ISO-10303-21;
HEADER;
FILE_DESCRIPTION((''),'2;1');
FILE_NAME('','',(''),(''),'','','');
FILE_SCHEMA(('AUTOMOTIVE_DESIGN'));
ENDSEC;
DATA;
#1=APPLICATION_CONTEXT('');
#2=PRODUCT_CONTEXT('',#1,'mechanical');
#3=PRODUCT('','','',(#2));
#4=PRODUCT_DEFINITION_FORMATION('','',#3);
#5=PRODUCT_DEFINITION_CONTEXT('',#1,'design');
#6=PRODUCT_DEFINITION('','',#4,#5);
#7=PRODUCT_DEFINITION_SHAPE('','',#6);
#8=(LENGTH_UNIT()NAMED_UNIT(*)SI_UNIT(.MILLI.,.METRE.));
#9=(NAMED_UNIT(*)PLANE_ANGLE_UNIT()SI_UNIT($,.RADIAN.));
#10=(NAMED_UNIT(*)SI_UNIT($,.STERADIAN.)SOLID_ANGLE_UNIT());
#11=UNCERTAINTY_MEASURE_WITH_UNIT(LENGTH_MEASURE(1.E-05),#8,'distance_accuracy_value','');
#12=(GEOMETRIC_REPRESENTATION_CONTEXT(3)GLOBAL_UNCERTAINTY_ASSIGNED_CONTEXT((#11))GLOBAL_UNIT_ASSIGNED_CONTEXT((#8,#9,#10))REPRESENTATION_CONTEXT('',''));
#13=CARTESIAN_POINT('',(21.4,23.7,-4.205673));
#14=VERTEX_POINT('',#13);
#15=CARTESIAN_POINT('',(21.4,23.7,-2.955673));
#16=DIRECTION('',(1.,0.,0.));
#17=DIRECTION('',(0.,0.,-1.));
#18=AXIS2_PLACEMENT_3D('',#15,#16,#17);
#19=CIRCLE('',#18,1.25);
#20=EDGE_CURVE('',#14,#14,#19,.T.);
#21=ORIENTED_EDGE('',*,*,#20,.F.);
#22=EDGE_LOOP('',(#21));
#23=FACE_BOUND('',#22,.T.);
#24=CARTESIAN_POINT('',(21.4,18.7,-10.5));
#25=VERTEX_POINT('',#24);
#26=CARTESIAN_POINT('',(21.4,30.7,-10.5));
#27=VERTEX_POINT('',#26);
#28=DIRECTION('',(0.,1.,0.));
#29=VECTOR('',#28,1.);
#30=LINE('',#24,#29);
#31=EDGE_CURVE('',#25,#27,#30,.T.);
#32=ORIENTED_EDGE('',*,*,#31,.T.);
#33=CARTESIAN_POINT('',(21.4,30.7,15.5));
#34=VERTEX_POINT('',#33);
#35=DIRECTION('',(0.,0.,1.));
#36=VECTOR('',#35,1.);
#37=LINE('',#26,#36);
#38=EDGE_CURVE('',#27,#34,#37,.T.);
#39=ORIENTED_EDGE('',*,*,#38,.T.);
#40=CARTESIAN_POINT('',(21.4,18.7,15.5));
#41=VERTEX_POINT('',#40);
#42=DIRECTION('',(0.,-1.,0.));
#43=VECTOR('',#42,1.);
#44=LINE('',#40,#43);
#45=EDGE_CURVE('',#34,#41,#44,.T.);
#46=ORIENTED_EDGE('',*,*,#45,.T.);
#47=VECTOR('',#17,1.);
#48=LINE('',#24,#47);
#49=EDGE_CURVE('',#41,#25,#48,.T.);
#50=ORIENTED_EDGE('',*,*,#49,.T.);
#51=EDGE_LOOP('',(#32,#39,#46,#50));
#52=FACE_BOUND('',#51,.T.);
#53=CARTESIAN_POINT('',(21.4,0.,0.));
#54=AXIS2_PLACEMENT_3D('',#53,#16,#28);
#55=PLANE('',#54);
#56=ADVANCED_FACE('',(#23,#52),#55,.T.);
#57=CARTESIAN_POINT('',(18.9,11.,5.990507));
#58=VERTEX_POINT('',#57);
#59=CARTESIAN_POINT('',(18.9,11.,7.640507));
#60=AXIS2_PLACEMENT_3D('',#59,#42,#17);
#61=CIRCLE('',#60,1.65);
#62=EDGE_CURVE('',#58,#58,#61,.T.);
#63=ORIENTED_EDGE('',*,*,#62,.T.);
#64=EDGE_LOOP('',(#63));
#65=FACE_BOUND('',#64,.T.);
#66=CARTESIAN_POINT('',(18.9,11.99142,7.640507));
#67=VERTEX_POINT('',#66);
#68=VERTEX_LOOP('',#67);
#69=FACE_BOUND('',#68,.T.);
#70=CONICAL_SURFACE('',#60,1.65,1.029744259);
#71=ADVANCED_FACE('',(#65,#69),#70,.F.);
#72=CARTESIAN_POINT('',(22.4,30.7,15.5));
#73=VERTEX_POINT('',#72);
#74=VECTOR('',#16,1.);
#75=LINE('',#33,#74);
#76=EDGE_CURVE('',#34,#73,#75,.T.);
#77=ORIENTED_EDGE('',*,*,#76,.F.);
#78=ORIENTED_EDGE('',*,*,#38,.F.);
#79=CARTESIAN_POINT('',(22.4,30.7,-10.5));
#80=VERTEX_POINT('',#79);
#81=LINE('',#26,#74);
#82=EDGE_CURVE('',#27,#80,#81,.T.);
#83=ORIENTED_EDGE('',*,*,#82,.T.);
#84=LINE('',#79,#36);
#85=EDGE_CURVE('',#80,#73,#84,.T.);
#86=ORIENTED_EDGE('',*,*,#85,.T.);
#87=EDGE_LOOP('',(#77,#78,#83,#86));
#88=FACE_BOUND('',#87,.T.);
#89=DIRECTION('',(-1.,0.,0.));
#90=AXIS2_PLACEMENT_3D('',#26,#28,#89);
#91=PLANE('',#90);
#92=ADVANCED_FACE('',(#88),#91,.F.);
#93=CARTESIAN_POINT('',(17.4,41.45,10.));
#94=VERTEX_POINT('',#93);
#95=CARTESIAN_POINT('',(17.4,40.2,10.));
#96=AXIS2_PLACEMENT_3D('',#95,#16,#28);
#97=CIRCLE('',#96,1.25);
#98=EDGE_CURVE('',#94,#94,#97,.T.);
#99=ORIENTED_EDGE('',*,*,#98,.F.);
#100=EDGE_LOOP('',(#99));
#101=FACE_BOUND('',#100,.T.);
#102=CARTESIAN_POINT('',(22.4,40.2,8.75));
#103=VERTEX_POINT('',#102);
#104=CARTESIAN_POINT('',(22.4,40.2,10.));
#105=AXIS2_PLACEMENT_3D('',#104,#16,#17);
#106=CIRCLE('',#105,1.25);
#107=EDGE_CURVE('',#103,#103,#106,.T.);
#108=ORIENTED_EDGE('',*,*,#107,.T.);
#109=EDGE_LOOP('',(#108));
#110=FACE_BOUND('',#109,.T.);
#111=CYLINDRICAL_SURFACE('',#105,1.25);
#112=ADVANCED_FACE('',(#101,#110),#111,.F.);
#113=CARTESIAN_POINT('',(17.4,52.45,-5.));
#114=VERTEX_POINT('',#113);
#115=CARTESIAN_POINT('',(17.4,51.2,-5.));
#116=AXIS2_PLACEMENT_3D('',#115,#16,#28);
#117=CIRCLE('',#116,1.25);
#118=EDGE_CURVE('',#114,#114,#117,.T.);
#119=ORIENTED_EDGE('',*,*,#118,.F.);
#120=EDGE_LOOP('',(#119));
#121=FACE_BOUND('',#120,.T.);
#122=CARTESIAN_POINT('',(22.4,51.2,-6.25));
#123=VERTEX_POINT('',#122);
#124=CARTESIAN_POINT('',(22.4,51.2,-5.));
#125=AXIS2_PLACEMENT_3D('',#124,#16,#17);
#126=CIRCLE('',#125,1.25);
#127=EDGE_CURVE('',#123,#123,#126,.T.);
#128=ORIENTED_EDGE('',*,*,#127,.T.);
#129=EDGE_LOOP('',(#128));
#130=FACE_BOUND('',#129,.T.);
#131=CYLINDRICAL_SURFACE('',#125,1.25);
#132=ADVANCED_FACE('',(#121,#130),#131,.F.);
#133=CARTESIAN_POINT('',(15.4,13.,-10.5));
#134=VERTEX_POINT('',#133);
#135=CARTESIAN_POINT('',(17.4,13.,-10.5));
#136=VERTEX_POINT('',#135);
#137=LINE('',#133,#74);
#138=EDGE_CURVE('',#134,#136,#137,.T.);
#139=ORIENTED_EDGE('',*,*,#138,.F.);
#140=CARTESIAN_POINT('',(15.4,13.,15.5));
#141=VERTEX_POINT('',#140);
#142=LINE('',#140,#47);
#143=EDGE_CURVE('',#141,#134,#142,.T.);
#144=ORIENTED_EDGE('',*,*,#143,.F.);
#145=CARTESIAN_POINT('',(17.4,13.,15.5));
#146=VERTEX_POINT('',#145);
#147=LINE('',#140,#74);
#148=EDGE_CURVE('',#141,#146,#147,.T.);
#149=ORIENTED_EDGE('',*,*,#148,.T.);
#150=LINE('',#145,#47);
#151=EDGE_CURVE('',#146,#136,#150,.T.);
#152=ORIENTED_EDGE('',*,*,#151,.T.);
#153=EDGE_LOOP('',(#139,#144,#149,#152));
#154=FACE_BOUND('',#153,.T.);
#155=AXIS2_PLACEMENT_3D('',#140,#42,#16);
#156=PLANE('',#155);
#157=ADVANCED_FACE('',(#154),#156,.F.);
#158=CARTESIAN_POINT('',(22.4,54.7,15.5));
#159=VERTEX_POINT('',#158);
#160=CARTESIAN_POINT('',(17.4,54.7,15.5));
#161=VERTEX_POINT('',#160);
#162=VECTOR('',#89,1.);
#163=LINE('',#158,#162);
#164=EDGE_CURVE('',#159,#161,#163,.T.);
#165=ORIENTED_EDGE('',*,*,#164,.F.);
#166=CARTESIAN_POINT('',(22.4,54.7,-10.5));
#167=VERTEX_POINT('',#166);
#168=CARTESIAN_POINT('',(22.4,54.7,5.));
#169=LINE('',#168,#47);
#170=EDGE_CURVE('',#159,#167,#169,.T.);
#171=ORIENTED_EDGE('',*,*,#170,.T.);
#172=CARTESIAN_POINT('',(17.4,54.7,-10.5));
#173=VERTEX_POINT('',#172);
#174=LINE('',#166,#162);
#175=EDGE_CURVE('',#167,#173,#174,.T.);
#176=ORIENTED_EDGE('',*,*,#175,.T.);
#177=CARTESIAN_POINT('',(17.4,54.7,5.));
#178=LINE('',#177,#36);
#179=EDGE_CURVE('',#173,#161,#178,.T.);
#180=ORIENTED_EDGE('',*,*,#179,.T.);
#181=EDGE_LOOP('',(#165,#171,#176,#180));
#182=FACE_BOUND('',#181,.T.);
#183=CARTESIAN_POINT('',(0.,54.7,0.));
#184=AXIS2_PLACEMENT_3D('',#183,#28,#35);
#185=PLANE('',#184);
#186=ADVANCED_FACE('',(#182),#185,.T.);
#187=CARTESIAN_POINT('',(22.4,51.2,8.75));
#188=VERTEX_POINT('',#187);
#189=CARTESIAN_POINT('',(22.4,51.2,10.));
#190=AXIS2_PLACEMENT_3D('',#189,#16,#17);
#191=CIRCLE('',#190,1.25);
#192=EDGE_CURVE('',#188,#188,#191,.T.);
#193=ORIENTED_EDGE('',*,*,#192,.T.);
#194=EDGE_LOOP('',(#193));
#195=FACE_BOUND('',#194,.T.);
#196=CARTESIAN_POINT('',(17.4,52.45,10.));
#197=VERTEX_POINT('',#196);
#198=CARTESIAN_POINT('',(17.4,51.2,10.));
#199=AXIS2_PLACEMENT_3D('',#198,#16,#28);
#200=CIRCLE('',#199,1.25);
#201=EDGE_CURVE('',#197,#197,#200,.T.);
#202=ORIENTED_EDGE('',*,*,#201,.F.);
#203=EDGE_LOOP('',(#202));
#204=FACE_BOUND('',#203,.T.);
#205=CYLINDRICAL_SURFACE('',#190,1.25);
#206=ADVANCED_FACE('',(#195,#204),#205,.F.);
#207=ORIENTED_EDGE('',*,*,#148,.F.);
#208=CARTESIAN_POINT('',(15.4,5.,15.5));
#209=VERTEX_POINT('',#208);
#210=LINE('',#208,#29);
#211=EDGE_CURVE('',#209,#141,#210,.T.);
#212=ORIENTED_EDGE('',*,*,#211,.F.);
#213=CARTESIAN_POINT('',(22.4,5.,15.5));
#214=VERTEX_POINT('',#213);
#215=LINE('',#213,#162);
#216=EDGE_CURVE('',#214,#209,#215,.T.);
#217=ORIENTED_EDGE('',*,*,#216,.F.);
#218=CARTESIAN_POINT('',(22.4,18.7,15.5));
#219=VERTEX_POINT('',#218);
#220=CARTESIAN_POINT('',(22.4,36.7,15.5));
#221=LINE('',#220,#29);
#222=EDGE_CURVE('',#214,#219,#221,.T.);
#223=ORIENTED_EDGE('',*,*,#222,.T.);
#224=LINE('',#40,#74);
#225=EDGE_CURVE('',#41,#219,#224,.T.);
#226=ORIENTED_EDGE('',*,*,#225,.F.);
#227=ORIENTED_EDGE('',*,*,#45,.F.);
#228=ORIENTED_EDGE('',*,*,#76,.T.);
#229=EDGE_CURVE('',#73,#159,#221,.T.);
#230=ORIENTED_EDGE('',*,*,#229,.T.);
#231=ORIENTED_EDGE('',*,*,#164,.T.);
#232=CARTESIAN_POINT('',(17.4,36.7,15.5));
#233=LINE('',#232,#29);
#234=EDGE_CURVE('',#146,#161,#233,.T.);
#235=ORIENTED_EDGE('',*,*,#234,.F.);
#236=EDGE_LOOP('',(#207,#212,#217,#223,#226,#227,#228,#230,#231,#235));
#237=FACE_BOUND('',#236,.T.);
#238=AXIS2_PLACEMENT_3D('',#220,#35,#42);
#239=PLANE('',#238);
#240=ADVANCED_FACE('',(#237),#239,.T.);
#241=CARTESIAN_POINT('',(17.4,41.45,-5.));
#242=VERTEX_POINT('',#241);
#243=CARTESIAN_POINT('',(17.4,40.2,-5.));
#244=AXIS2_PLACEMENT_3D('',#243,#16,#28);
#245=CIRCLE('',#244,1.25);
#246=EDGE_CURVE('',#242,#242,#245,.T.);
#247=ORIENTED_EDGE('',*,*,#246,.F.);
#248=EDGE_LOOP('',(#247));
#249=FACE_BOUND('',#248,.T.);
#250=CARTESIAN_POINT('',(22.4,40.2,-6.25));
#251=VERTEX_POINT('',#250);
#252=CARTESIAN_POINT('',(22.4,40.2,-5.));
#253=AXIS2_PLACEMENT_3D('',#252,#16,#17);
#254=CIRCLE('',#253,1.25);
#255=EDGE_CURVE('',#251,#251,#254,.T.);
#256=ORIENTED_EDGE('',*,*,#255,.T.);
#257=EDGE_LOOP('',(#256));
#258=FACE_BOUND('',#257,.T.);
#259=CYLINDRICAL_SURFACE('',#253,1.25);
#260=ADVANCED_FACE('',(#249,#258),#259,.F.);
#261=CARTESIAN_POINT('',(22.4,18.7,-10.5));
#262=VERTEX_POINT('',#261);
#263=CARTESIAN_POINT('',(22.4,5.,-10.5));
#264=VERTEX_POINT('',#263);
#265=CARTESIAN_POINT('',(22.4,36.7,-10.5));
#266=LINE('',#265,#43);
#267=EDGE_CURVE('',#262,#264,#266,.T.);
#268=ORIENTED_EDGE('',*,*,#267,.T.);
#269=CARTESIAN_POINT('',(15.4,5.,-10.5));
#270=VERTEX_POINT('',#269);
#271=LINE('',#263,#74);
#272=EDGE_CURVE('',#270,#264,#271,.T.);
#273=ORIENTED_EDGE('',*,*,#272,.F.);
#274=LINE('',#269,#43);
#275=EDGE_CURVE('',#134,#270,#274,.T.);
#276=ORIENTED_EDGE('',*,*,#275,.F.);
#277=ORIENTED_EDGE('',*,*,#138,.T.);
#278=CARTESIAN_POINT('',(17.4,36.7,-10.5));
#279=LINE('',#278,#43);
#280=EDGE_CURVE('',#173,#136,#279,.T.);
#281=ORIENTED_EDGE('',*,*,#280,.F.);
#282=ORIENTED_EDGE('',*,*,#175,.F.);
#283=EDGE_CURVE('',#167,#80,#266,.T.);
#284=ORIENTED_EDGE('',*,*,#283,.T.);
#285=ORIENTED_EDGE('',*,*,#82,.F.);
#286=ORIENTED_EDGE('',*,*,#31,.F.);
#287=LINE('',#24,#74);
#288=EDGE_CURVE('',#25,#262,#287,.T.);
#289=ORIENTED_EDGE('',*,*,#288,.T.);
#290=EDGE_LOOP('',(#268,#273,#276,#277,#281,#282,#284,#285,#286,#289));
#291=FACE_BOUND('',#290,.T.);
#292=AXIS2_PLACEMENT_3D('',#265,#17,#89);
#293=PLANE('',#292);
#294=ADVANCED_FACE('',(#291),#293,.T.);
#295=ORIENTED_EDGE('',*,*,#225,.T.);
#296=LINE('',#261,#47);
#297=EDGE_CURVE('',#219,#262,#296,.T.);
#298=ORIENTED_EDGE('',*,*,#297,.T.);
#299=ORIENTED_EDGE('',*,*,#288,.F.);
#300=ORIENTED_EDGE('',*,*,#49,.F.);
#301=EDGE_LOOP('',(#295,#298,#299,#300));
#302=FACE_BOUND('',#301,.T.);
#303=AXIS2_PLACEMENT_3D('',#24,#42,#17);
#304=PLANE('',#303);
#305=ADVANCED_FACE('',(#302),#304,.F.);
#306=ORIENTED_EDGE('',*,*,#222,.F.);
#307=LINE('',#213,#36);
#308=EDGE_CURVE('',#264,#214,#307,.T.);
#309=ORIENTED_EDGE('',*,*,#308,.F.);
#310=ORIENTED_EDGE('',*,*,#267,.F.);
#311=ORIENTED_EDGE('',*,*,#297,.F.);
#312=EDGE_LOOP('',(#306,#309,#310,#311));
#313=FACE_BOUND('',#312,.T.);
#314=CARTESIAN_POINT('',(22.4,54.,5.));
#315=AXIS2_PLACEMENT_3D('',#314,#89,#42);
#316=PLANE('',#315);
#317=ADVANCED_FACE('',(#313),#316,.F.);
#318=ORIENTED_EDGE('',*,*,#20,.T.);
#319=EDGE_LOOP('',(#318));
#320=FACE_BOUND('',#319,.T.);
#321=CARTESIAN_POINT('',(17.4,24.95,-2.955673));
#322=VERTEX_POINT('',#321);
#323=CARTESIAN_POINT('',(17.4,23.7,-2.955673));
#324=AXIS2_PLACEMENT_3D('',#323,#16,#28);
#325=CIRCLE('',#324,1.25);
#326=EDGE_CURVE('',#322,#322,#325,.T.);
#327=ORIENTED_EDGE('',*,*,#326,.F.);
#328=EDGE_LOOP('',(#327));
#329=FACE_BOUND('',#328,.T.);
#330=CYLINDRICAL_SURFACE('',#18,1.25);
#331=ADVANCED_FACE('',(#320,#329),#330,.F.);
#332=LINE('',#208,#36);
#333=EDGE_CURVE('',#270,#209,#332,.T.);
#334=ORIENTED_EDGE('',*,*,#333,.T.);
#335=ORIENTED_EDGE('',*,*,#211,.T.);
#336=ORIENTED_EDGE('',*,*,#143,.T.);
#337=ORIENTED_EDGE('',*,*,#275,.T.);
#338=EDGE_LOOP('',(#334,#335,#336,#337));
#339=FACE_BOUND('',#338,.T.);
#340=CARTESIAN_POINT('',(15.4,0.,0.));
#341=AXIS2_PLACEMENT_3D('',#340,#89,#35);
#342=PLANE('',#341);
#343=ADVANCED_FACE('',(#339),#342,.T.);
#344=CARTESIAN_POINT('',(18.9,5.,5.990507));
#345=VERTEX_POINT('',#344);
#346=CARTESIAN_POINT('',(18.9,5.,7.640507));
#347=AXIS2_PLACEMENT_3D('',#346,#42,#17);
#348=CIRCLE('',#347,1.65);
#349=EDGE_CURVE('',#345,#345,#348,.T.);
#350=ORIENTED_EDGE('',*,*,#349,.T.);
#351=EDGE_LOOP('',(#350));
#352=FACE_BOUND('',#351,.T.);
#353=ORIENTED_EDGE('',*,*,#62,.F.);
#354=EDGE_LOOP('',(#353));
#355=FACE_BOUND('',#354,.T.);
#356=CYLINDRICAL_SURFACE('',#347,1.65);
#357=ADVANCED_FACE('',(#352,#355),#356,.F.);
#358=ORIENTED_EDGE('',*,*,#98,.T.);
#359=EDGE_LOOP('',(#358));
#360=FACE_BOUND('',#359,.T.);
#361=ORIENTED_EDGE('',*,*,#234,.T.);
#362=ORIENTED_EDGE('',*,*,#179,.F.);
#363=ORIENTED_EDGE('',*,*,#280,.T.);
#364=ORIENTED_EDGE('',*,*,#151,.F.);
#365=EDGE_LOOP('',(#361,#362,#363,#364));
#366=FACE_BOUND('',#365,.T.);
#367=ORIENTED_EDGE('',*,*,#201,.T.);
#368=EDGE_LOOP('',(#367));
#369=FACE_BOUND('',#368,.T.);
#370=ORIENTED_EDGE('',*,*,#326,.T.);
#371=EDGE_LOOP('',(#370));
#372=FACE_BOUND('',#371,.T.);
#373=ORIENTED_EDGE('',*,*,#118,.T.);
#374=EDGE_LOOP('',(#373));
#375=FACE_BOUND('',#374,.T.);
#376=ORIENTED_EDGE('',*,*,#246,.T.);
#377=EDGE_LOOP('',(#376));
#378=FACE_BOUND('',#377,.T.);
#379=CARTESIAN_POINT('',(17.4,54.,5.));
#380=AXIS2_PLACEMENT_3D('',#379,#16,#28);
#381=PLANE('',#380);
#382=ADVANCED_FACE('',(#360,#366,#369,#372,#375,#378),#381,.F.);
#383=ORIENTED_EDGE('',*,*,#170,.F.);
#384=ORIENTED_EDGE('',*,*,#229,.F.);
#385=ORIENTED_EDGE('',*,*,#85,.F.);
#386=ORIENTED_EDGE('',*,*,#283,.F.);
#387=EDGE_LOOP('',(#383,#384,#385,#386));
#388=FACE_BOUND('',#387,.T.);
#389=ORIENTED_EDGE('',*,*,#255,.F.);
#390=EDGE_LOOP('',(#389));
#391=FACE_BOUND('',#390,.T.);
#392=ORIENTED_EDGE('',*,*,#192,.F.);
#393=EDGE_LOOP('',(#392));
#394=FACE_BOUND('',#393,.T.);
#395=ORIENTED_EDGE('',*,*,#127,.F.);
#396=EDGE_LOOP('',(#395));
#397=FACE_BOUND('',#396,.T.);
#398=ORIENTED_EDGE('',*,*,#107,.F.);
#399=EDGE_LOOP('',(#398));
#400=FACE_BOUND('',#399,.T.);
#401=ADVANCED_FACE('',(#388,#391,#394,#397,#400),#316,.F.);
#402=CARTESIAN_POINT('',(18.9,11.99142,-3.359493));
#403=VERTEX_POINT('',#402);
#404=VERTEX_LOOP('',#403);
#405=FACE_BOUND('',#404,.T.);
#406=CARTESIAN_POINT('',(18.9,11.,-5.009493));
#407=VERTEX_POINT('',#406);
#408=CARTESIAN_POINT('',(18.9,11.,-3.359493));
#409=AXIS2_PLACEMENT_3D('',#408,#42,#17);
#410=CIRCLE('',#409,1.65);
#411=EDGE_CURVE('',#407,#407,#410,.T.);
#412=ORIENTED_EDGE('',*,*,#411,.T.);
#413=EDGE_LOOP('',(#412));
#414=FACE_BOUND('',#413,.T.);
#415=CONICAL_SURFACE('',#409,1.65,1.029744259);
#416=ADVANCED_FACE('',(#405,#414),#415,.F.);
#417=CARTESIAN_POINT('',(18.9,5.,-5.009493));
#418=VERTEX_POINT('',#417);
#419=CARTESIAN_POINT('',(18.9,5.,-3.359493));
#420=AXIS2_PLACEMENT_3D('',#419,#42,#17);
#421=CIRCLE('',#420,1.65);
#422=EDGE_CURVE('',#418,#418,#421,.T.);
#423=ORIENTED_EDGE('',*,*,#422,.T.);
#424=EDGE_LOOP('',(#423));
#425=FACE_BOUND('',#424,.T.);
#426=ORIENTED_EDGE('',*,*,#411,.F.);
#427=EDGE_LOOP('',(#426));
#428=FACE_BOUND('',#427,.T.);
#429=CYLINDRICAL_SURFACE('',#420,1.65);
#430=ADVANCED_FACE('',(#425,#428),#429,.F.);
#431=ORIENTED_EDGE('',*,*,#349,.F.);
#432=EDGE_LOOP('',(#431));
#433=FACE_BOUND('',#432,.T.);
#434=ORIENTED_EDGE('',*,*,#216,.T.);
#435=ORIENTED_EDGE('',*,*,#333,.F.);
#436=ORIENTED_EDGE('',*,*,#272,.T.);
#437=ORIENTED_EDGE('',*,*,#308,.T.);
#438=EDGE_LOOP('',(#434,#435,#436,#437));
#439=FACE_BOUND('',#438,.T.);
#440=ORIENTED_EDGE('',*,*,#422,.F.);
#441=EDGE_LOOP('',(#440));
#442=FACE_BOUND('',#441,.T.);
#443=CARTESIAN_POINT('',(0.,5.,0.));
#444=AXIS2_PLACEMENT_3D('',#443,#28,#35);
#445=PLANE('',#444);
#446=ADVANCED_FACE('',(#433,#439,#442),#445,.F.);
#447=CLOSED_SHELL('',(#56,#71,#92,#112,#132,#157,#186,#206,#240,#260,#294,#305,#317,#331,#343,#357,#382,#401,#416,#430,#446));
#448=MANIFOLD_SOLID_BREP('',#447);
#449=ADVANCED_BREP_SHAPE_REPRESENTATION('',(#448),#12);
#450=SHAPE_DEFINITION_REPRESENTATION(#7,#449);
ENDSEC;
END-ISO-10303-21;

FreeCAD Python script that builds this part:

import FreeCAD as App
import Part
import Sketcher
from FreeCAD import Vector
Q = App.Units.Quantity

doc = App.newDocument("Part")
body = doc.addObject("PartDesign::Body", "Body")

# Sketch on XY plane
sketch1 = body.newObject("Sketcher::SketchObject", "Sketch")
sketch1.AttachmentSupport = (doc.getObject("XY_Plane"), [""])
sketch1.MapMode = "FlatFace"
sketch1.addGeometry([
    Part.LineSegment(Vector(0, 6, 0), Vector(0, 0, 0)),
    Part.LineSegment(Vector(0, 0, 0), Vector(30, 0, 0)),
    Part.LineSegment(Vector(30, 0, 0), Vector(30, 6, 0)),
    Part.LineSegment(Vector(30, 6, 0), Vector(0, 6, 0)),
], False)
sketch1.addConstraint([
    Sketcher.Constraint("Coincident", 0, 2, 1, 1),
    Sketcher.Constraint("Coincident", 1, 2, 2, 1),
    Sketcher.Constraint("Coincident", 2, 2, 3, 1),
    Sketcher.Constraint("Coincident", 3, 2, 0, 1),
    Sketcher.Constraint("Vertical", 0),
    Sketcher.Constraint("Horizontal", 1),
    Sketcher.Constraint("Vertical", 2),
    Sketcher.Constraint("Horizontal", 3),
    Sketcher.Constraint("Coincident", 0, 2, -1, 1),
    Sketcher.Constraint("DistanceX", 1, 1, 1, 2, Q("30 mm")),
    Sketcher.Constraint("DistanceY", 0, 2, 0, 1, Q("6 mm")),
])
pad1 = body.newObject("PartDesign::Pad", "Pad")
pad1.Profile = sketch1
pad1.Length = 5

# Sketch on XY plane
sketch2 = body.newObject("Sketcher::SketchObject", "Sketch001")
sketch2.AttachmentSupport = (doc.getObject("XY_Plane"), [""])
sketch2.MapMode = "FlatFace"
sketch2.AttachmentOffset = App.Placement(Vector(0, 0, 5), App.Rotation())
sketch2.addGeometry([
    Part.Circle(Vector(22.5, 3, 0), Vector(0, 0, 1), 2.25),
    Part.Circle(Vector(7.5, 3, 0), Vector(0, 0, 1), 2.25),
], False)
sketch2.addConstraint([
    Sketcher.Constraint("Equal", 0, 1),
    Sketcher.Constraint("Horizontal", 0, 3, 1, 3),
    Sketcher.Constraint("Diameter", 0, Q("4.5 mm")),
    Sketcher.Constraint("DistanceY", -1, 1, 0, 3, Q("3 mm")),
    Sketcher.Constraint("DistanceX", 1, 3, 0, 3, Q("15 mm")),
    Sketcher.Constraint("DistanceX", -1, 1, 0, 3, Q("22.5 mm")),
])
pocket1 = body.newObject("PartDesign::Pocket", "Pocket")
pocket1.Profile = sketch2
pocket1.Type = "ThroughAll"

# Sketch on XY plane
sketch3 = body.newObject("Sketcher::SketchObject", "Sketch002")
sketch3.AttachmentSupport = (doc.getObject("XY_Plane"), [""])
sketch3.MapMode = "FlatFace"
sketch3.AttachmentOffset = App.Placement(Vector(0, 0, 5), App.Rotation())
sketch3.addGeometry([
    Part.LineSegment(Vector(-10, 36, 0), Vector(-10, 6, 0)),
    Part.LineSegment(Vector(-10, 6, 0), Vector(30, 6, 0)),
    Part.LineSegment(Vector(30, 6, 0), Vector(30, 36, 0)),
    Part.LineSegment(Vector(30, 36, 0), Vector(-10, 36, 0)),
], False)
sketch3.addConstraint([
    Sketcher.Constraint("Coincident", 0, 2, 1, 1),
    Sketcher.Constraint("Coincident", 1, 2, 2, 1),
    Sketcher.Constraint("Coincident", 2, 2, 3, 1),
    Sketcher.Constraint("Coincident", 3, 2, 0, 1),
    Sketcher.Constraint("Vertical", 0),
    Sketcher.Constraint("Horizontal", 1),
    Sketcher.Constraint("Vertical", 2),
    Sketcher.Constraint("Horizontal", 3),
    Sketcher.Constraint("DistanceX", 1, 1, 1, 2, Q("40 mm")),
    Sketcher.Constraint("DistanceY", 0, 2, 0, 1, Q("30 mm")),
    Sketcher.Constraint("DistanceX", 0, 2, -1, 1, Q("10 mm")),
    Sketcher.Constraint("DistanceY", -1, 1, 0, 2, Q("6 mm")),
])
pad2 = body.newObject("PartDesign::Pad", "Pad001")
pad2.Profile = sketch3
pad2.Length = 5
pad2.Reversed = True

# Sketch on XY plane
sketch4 = body.newObject("Sketcher::SketchObject", "Sketch003")
sketch4.AttachmentSupport = (doc.getObject("XY_Plane"), [""])
sketch4.MapMode = "FlatFace"
sketch4.AttachmentOffset = App.Placement(Vector(0, 0, 5), App.Rotation())
sketch4.addGeometry([
    Part.LineSegment(Vector(27, 36, 0), Vector(27, 16, 0)),
    Part.LineSegment(Vector(27, 16, 0), Vector(30, 16, 0)),
    Part.LineSegment(Vector(30, 16, 0), Vector(30, 36, 0)),
    Part.LineSegment(Vector(30, 36, 0), Vector(27, 36, 0)),
], False)
sketch4.addConstraint([
    Sketcher.Constraint("Coincident", 0, 2, 1, 1),
    Sketcher.Constraint("Coincident", 1, 2, 2, 1),
    Sketcher.Constraint("Coincident", 2, 2, 3, 1),
    Sketcher.Constraint("Coincident", 3, 2, 0, 1),
    Sketcher.Constraint("Vertical", 0),
    Sketcher.Constraint("Horizontal", 1),
    Sketcher.Constraint("Vertical", 2),
    Sketcher.Constraint("Horizontal", 3),
    Sketcher.Constraint("DistanceX", 1, 1, 1, 2, Q("3 mm")),
    Sketcher.Constraint("DistanceY", 0, 2, 0, 1, Q("20 mm")),
    Sketcher.Constraint("DistanceX", -1, 1, 0, 2, Q("27 mm")),
    Sketcher.Constraint("DistanceY", -1, 1, 0, 2, Q("16 mm")),
])
pocket2 = body.newObject("PartDesign::Pocket", "Pocket001")
pocket2.Profile = sketch4
pocket2.Length = 10

# Sketch on XZ plane
sketch5 = body.newObject("Sketcher::SketchObject", "Sketch004")
sketch5.AttachmentSupport = (doc.getObject("XZ_Plane"), [""])
sketch5.MapMode = "FlatFace"
sketch5.AttachmentOffset = App.Placement(Vector(0, 0, -6), App.Rotation())
sketch5.addGeometry([
    Part.LineSegment(Vector(-10, 5, 0), Vector(-10, 0, 0)),
    Part.LineSegment(Vector(-10, 0, 0), Vector(0, 0, 0)),
    Part.LineSegment(Vector(0, 0, 0), Vector(0, 5, 0)),
    Part.LineSegment(Vector(0, 5, 0), Vector(-10, 5, 0)),
], False)
sketch5.addConstraint([
    Sketcher.Constraint("Coincident", 0, 2, 1, 1),
    Sketcher.Constraint("Coincident", 1, 2, 2, 1),
    Sketcher.Constraint("Coincident", 2, 2, 3, 1),
    Sketcher.Constraint("Coincident", 3, 2, 0, 1),
    Sketcher.Constraint("Vertical", 0),
    Sketcher.Constraint("Horizontal", 1),
    Sketcher.Constraint("Vertical", 2),
    Sketcher.Constraint("Horizontal", 3),
    Sketcher.Constraint("Coincident", 1, 2, -1, 1),
    Sketcher.Constraint("DistanceX", 1, 1, 1, 2, Q("10 mm")),
    Sketcher.Constraint("DistanceY", 0, 2, 0, 1, Q("5 mm")),
])
pocket3 = body.newObject("PartDesign::Pocket", "Pocket002")
pocket3.Profile = sketch5
pocket3.Type = "ThroughAll"

# Sketch on XZ plane
sketch6 = body.newObject("Sketcher::SketchObject", "Sketch005")
sketch6.AttachmentSupport = (doc.getObject("XZ_Plane"), [""])
sketch6.MapMode = "FlatFace"
sketch6.AttachmentOffset = App.Placement(Vector(0, 0, -36), App.Rotation())
sketch6.addGeometry([
    Part.LineSegment(Vector(17.4, 0, 0), Vector(17.4, 5, 0)),
    Part.LineSegment(Vector(17.4, 5, 0), Vector(22.4, 5, 0)),
    Part.LineSegment(Vector(22.4, 5, 0), Vector(22.4, 0, 0)),
    Part.LineSegment(Vector(22.4, 0, 0), Vector(17.4, 0, 0)),
], False)
sketch6.addConstraint([
    Sketcher.Constraint("Coincident", 0, 2, 1, 1),
    Sketcher.Constraint("Coincident", 1, 2, 2, 1),
    Sketcher.Constraint("Coincident", 2, 2, 3, 1),
    Sketcher.Constraint("Coincident", 3, 2, 0, 1),
    Sketcher.Constraint("Vertical", 0),
    Sketcher.Constraint("Horizontal", 1),
    Sketcher.Constraint("Vertical", 2),
    Sketcher.Constraint("Horizontal", 3),
    Sketcher.Constraint("PointOnObject", 2, 2, -1),
    Sketcher.Constraint("Equal", 3, 0),
    Sketcher.Constraint("DistanceX", 1, 1, 1, 2, Q("5 mm")),
    Sketcher.Constraint("DistanceX", -1, 1, 0, 2, Q("17.4 mm")),
])
pad3 = body.newObject("PartDesign::Pad", "Pad002")
pad3.Profile = sketch6
pad3.Length = 18
pad3.Reversed = True

# Sketch on XY plane
sketch7 = body.newObject("Sketcher::SketchObject", "Sketch006")
sketch7.AttachmentSupport = (doc.getObject("XY_Plane"), [""])
sketch7.MapMode = "FlatFace"
sketch7.AttachmentOffset = App.Placement(Vector(0, 0, 5), App.Rotation())
sketch7.addGeometry([
    Part.LineSegment(Vector(0, 36, 0), Vector(0, 16, 0)),
    Part.LineSegment(Vector(0, 16, 0), Vector(10, 16, 0)),
    Part.LineSegment(Vector(10, 16, 0), Vector(10, 36, 0)),
    Part.LineSegment(Vector(10, 36, 0), Vector(0, 36, 0)),
], False)
sketch7.addConstraint([
    Sketcher.Constraint("Coincident", 0, 2, 1, 1),
    Sketcher.Constraint("Coincident", 1, 2, 2, 1),
    Sketcher.Constraint("Coincident", 2, 2, 3, 1),
    Sketcher.Constraint("Coincident", 3, 2, 0, 1),
    Sketcher.Constraint("Vertical", 0),
    Sketcher.Constraint("Horizontal", 1),
    Sketcher.Constraint("Vertical", 2),
    Sketcher.Constraint("Horizontal", 3),
    Sketcher.Constraint("PointOnObject", 0, 2, -2),
    Sketcher.Constraint("DistanceX", 1, 1, 1, 2, Q("10 mm")),
    Sketcher.Constraint("DistanceY", 0, 2, 0, 1, Q("20 mm")),
    Sketcher.Constraint("DistanceY", -1, 1, 0, 2, Q("16 mm")),
])
pocket4 = body.newObject("PartDesign::Pocket", "Pocket003")
pocket4.Profile = sketch7
pocket4.Length = 18

# Sketch on XZ plane
sketch8 = body.newObject("Sketcher::SketchObject", "Sketch007")
sketch8.AttachmentSupport = (doc.getObject("XZ_Plane"), [""])
sketch8.MapMode = "FlatFace"
sketch8.AttachmentOffset = App.Placement(Vector(0, 0, -36), App.Rotation())
sketch8.addGeometry([
    Part.LineSegment(Vector(10, 0, 0), Vector(10, 5, 0)),
    Part.LineSegment(Vector(10, 5, 0), Vector(27, 5, 0)),
    Part.LineSegment(Vector(27, 5, 0), Vector(27, 0, 0)),
    Part.LineSegment(Vector(27, 0, 0), Vector(10, 0, 0)),
], False)
sketch8.addConstraint([
    Sketcher.Constraint("Coincident", 0, 2, 1, 1),
    Sketcher.Constraint("Coincident", 1, 2, 2, 1),
    Sketcher.Constraint("Coincident", 2, 2, 3, 1),
    Sketcher.Constraint("Coincident", 3, 2, 0, 1),
    Sketcher.Constraint("Vertical", 0),
    Sketcher.Constraint("Horizontal", 1),
    Sketcher.Constraint("Vertical", 2),
    Sketcher.Constraint("Horizontal", 3),
    Sketcher.Constraint("PointOnObject", 2, 2, -1),
    Sketcher.Constraint("DistanceX", 1, 1, 1, 2, Q("17 mm")),
    Sketcher.Constraint("DistanceY", 0, 1, 0, 2, Q("5 mm")),
    Sketcher.Constraint("DistanceX", -1, 1, 0, 2, Q("10 mm")),
])
pad4 = body.newObject("PartDesign::Pad", "Pad003")
pad4.Profile = sketch8
pad4.Length = 0.7
pad4.Reversed = True

# Sketch on XZ plane
sketch9 = body.newObject("Sketcher::SketchObject", "Sketch008")
sketch9.AttachmentSupport = (doc.getObject("XZ_Plane"), [""])
sketch9.MapMode = "FlatFace"
sketch9.AttachmentOffset = App.Placement(Vector(0, 0, -54), App.Rotation())
sketch9.addGeometry([
    Part.LineSegment(Vector(17.4, 0, 0), Vector(17.4, 5, 0)),
    Part.LineSegment(Vector(17.4, 5, 0), Vector(22.4, 5, 0)),
    Part.LineSegment(Vector(22.4, 5, 0), Vector(22.4, 0, 0)),
    Part.LineSegment(Vector(22.4, 0, 0), Vector(17.4, 0, 0)),
], False)
sketch9.addConstraint([
    Sketcher.Constraint("Coincident", 0, 2, 1, 1),
    Sketcher.Constraint("Coincident", 1, 2, 2, 1),
    Sketcher.Constraint("Coincident", 2, 2, 3, 1),
    Sketcher.Constraint("Coincident", 3, 2, 0, 1),
    Sketcher.Constraint("Vertical", 0),
    Sketcher.Constraint("Horizontal", 1),
    Sketcher.Constraint("Vertical", 2),
    Sketcher.Constraint("Horizontal", 3),
    Sketcher.Constraint("PointOnObject", 2, 2, -1),
    Sketcher.Constraint("Equal", 3, 0),
    Sketcher.Constraint("DistanceX", 1, 1, 1, 2, Q("5 mm")),
    Sketcher.Constraint("DistanceX", -1, 1, 0, 2, Q("17.4 mm")),
])
pad5 = body.newObject("PartDesign::Pad", "Pad004")
pad5.Profile = sketch9
pad5.Length = 0.7
pad5.Reversed = True

# Sketch on YZ plane
sketch10 = body.newObject("Sketcher::SketchObject", "Sketch009")
sketch10.AttachmentSupport = (doc.getObject("YZ_Plane"), [""])
sketch10.MapMode = "FlatFace"
sketch10.AttachmentOffset = App.Placement(Vector(0, 0, 17.4), App.Rotation())
sketch10.addGeometry([
    Part.LineSegment(Vector(54.7, -10.5, 0), Vector(36.7, -10.5, 0)),
    Part.LineSegment(Vector(36.7, -10.5, 0), Vector(36.7, 15.5, 0)),
    Part.LineSegment(Vector(36.7, 15.5, 0), Vector(54.7, 15.5, 0)),
    Part.LineSegment(Vector(54.7, 15.5, 0), Vector(54.7, -10.5, 0)),
], False)
sketch10.addConstraint([
    Sketcher.Constraint("Coincident", 0, 2, 1, 1),
    Sketcher.Constraint("Coincident", 1, 2, 2, 1),
    Sketcher.Constraint("Coincident", 2, 2, 3, 1),
    Sketcher.Constraint("Coincident", 3, 2, 0, 1),
    Sketcher.Constraint("Horizontal", 0),
    Sketcher.Constraint("Vertical", 1),
    Sketcher.Constraint("Horizontal", 2),
    Sketcher.Constraint("Vertical", 3),
    Sketcher.Constraint("DistanceX", 0, 2, 0, 1, Q("18 mm")),
    Sketcher.Constraint("DistanceY", 1, 1, 1, 2, Q("26 mm")),
    Sketcher.Constraint("DistanceX", -1, 1, 0, 2, Q("36.7 mm")),
    Sketcher.Constraint("DistanceY", 0, 2, -1, 1, Q("10.5 mm")),
])
pad6 = body.newObject("PartDesign::Pad", "Pad005")
pad6.Profile = sketch10
pad6.Length = 5

# Sketch on YZ plane
sketch11 = body.newObject("Sketcher::SketchObject", "Sketch010")
sketch11.AttachmentSupport = (doc.getObject("YZ_Plane"), [""])
sketch11.MapMode = "FlatFace"
sketch11.AttachmentOffset = App.Placement(Vector(0, 0, 22.4), App.Rotation())
sketch11.addGeometry([
    Part.Circle(Vector(40.2, 10, 0), Vector(0, 0, 1), 1.25),
    Part.Circle(Vector(40.2, -5, 0), Vector(0, 0, 1), 1.25),
    Part.Circle(Vector(51.2, -5, 0), Vector(0, 0, 1), 1.25),
    Part.Circle(Vector(51.2, 10, 0), Vector(0, 0, 1), 1.25),
], False)
sketch11.addConstraint([
    Sketcher.Constraint("Equal", 0, 1),
    Sketcher.Constraint("Equal", 1, 2),
    Sketcher.Constraint("Equal", 2, 3),
    Sketcher.Constraint("Horizontal", 1, 3, 2, 3),
    Sketcher.Constraint("Horizontal", 0, 3, 3, 3),
    Sketcher.Constraint("Vertical", 0, 3, 1, 3),
    Sketcher.Constraint("Vertical", 2, 3, 3, 3),
    Sketcher.Constraint("Diameter", 0, Q("2.5 mm")),
    Sketcher.Constraint("DistanceY", -1, 1, 0, 3, Q("10 mm")),
    Sketcher.Constraint("DistanceY", 1, 3, -1, 1, Q("5 mm")),
    Sketcher.Constraint("DistanceX", 1, 3, 2, 3, Q("11 mm")),
    Sketcher.Constraint("DistanceX", -1, 1, 0, 3, Q("40.2 mm")),
])
doc.recompute()
hole = body.newObject("PartDesign::Hole", "Hole")
hole.Profile = sketch11
hole.ThreadType = "None"
hole.Diameter = 2.5
hole.DepthType = "Dimension"
hole.Depth = 7.5
hole.DrillPoint = "Angled"
hole.DrillPointAngle = 118

# Sketch on YZ plane
sketch12 = body.newObject("Sketcher::SketchObject", "Sketch011")
sketch12.AttachmentSupport = (doc.getObject("YZ_Plane"), [""])
sketch12.MapMode = "FlatFace"
sketch12.AttachmentOffset = App.Placement(Vector(0, 0, 30), App.Rotation())
sketch12.addGeometry([
    Part.LineSegment(Vector(36.7, 14.267112, 0), Vector(-2.599316, 14.267112, 0)),
    Part.LineSegment(Vector(-2.599316, 14.267112, 0), Vector(-2.599316, 0, 0)),
    Part.LineSegment(Vector(-2.599316, 0, 0), Vector(36.7, 0, 0)),
    Part.LineSegment(Vector(36.7, 0, 0), Vector(36.7, 14.267112, 0)),
], False)
sketch12.addConstraint([
    Sketcher.Constraint("Coincident", 0, 2, 1, 1),
    Sketcher.Constraint("Coincident", 1, 2, 2, 1),
    Sketcher.Constraint("Coincident", 2, 2, 3, 1),
    Sketcher.Constraint("Coincident", 3, 2, 0, 1),
    Sketcher.Constraint("Horizontal", 0),
    Sketcher.Constraint("Vertical", 1),
    Sketcher.Constraint("Horizontal", 2),
    Sketcher.Constraint("Vertical", 3),
    Sketcher.Constraint("PointOnObject", 1, 2, -1),
    Sketcher.Constraint("DistanceX", -1, 1, 2, 2, Q("36.7 mm")),
    Sketcher.Constraint("DistanceY", 1, 2, 1, 1, Q("14.267112 mm")),
    Sketcher.Constraint("DistanceX", 0, 2, 0, 1, Q("39.299316 mm")),
])
pocket5 = body.newObject("PartDesign::Pocket", "Pocket004")
pocket5.Profile = sketch12
pocket5.Type = "ThroughAll"

# Sketch on XZ plane
sketch13 = body.newObject("Sketcher::SketchObject", "Sketch012")
sketch13.AttachmentSupport = (doc.getObject("XZ_Plane"), [""])
sketch13.MapMode = "FlatFace"
sketch13.AttachmentOffset = App.Placement(Vector(0, 0, -36.7), App.Rotation())
sketch13.addGeometry([
    Part.LineSegment(Vector(17.4, 15.5, 0), Vector(17.4, -10.5, 0)),
    Part.LineSegment(Vector(17.4, -10.5, 0), Vector(22.4, -10.5, 0)),
    Part.LineSegment(Vector(22.4, -10.5, 0), Vector(22.4, 15.5, 0)),
    Part.LineSegment(Vector(22.4, 15.5, 0), Vector(17.4, 15.5, 0)),
], False)
sketch13.addConstraint([
    Sketcher.Constraint("Coincident", 0, 2, 1, 1),
    Sketcher.Constraint("Coincident", 1, 2, 2, 1),
    Sketcher.Constraint("Coincident", 2, 2, 3, 1),
    Sketcher.Constraint("Coincident", 3, 2, 0, 1),
    Sketcher.Constraint("Vertical", 0),
    Sketcher.Constraint("Horizontal", 1),
    Sketcher.Constraint("Vertical", 2),
    Sketcher.Constraint("Horizontal", 3),
    Sketcher.Constraint("DistanceX", 1, 1, 1, 2, Q("5 mm")),
    Sketcher.Constraint("DistanceY", 0, 2, 0, 1, Q("26 mm")),
    Sketcher.Constraint("DistanceX", -1, 1, 0, 2, Q("17.4 mm")),
    Sketcher.Constraint("DistanceY", 0, 2, -1, 1, Q("10.5 mm")),
])
pad7 = body.newObject("PartDesign::Pad", "Pad006")
pad7.Profile = sketch13
pad7.Length = 30.7

# Sketch on XZ plane
sketch14 = body.newObject("Sketcher::SketchObject", "Sketch013")
sketch14.AttachmentSupport = (doc.getObject("XZ_Plane"), [""])
sketch14.MapMode = "FlatFace"
sketch14.AttachmentOffset = App.Placement(Vector(0, 0, -6), App.Rotation())
sketch14.addGeometry([
    Part.LineSegment(Vector(17.4, 15.5, 0), Vector(17.4, -10.5, 0)),
    Part.LineSegment(Vector(17.4, -10.5, 0), Vector(22.4, -10.5, 0)),
    Part.LineSegment(Vector(22.4, -10.5, 0), Vector(22.4, 15.5, 0)),
    Part.LineSegment(Vector(22.4, 15.5, 0), Vector(17.4, 15.5, 0)),
], False)
sketch14.addConstraint([
    Sketcher.Constraint("Coincident", 0, 2, 1, 1),
    Sketcher.Constraint("Coincident", 1, 2, 2, 1),
    Sketcher.Constraint("Coincident", 2, 2, 3, 1),
    Sketcher.Constraint("Coincident", 3, 2, 0, 1),
    Sketcher.Constraint("Vertical", 0),
    Sketcher.Constraint("Horizontal", 1),
    Sketcher.Constraint("Vertical", 2),
    Sketcher.Constraint("Horizontal", 3),
    Sketcher.Constraint("DistanceX", 1, 1, 1, 2, Q("5 mm")),
    Sketcher.Constraint("DistanceY", 0, 2, 0, 1, Q("26 mm")),
    Sketcher.Constraint("DistanceX", -1, 1, 0, 2, Q("17.4 mm")),
    Sketcher.Constraint("DistanceY", 0, 2, -1, 1, Q("10.5 mm")),
])
pad8 = body.newObject("PartDesign::Pad", "Pad007")
pad8.Profile = sketch14
pad8.Length = 1

# Sketch on YZ plane
sketch15 = body.newObject("Sketcher::SketchObject", "Sketch014")
sketch15.AttachmentSupport = (doc.getObject("YZ_Plane"), [""])
sketch15.MapMode = "FlatFace"
sketch15.AttachmentOffset = App.Placement(Vector(0, 0, 17.4), App.Rotation())
sketch15.addGeometry([
    Part.LineSegment(Vector(13, -10.5, 0), Vector(5, -10.5, 0)),
    Part.LineSegment(Vector(5, -10.5, 0), Vector(5, 15.5, 0)),
    Part.LineSegment(Vector(5, 15.5, 0), Vector(13, 15.5, 0)),
    Part.LineSegment(Vector(13, 15.5, 0), Vector(13, -10.5, 0)),
], False)
sketch15.addConstraint([
    Sketcher.Constraint("Coincident", 0, 2, 1, 1),
    Sketcher.Constraint("Coincident", 1, 2, 2, 1),
    Sketcher.Constraint("Coincident", 2, 2, 3, 1),
    Sketcher.Constraint("Coincident", 3, 2, 0, 1),
    Sketcher.Constraint("Horizontal", 0),
    Sketcher.Constraint("Vertical", 1),
    Sketcher.Constraint("Horizontal", 2),
    Sketcher.Constraint("Vertical", 3),
    Sketcher.Constraint("DistanceX", 0, 2, 0, 1, Q("8 mm")),
    Sketcher.Constraint("DistanceY", 1, 1, 1, 2, Q("26 mm")),
    Sketcher.Constraint("DistanceX", -1, 1, 0, 2, Q("5 mm")),
    Sketcher.Constraint("DistanceY", 0, 2, -1, 1, Q("10.5 mm")),
])
pad9 = body.newObject("PartDesign::Pad", "Pad008")
pad9.Profile = sketch15
pad9.Length = 2
pad9.Reversed = True

# Sketch on XZ plane
sketch16 = body.newObject("Sketcher::SketchObject", "Sketch015")
sketch16.AttachmentSupport = (doc.getObject("XZ_Plane"), [""])
sketch16.MapMode = "FlatFace"
sketch16.AttachmentOffset = App.Placement(Vector(0, 0, -5), App.Rotation())
sketch16.addGeometry([
    Part.Circle(Vector(18.9, 7.640507, 0), Vector(0, 0, 1), 1.65),
    Part.Circle(Vector(18.9, -3.359493, 0), Vector(0, 0, 1), 1.65),
], False)
sketch16.addConstraint([
    Sketcher.Constraint("Equal", 0, 1),
    Sketcher.Constraint("Vertical", 0, 3, 1, 3),
    Sketcher.Constraint("Diameter", 0, Q("3.3 mm")),
    Sketcher.Constraint("DistanceY", 1, 3, 0, 3, Q("11 mm")),
    Sketcher.Constraint("DistanceX", -1, 1, 0, 3, Q("18.9 mm")),
    Sketcher.Constraint("DistanceY", -1, 1, 0, 3, Q("7.640507 mm")),
])
doc.recompute()
hole2 = body.newObject("PartDesign::Hole", "Hole001")
hole2.Profile = sketch16
hole2.ThreadType = "None"
hole2.Diameter = 3.3
hole2.DepthType = "Dimension"
hole2.Depth = 6
hole2.DrillPoint = "Angled"
hole2.DrillPointAngle = 118

# Sketch on YZ plane
sketch17 = body.newObject("Sketcher::SketchObject", "Sketch016")
sketch17.AttachmentSupport = (doc.getObject("YZ_Plane"), [""])
sketch17.MapMode = "FlatFace"
sketch17.AttachmentOffset = App.Placement(Vector(0, 0, 22.4), App.Rotation())
sketch17.addGeometry([
    Part.LineSegment(Vector(30.7, 15.5, 0), Vector(18.7, 15.5, 0)),
    Part.LineSegment(Vector(18.7, 15.5, 0), Vector(18.7, -10.5, 0)),
    Part.LineSegment(Vector(18.7, -10.5, 0), Vector(30.7, -10.5, 0)),
    Part.LineSegment(Vector(30.7, -10.5, 0), Vector(30.7, 15.5, 0)),
], False)
sketch17.addConstraint([
    Sketcher.Constraint("Coincident", 0, 2, 1, 1),
    Sketcher.Constraint("Coincident", 1, 2, 2, 1),
    Sketcher.Constraint("Coincident", 2, 2, 3, 1),
    Sketcher.Constraint("Coincident", 3, 2, 0, 1),
    Sketcher.Constraint("Horizontal", 0),
    Sketcher.Constraint("Vertical", 1),
    Sketcher.Constraint("Horizontal", 2),
    Sketcher.Constraint("Vertical", 3),
    Sketcher.Constraint("DistanceX", 0, 2, 0, 1, Q("12 mm")),
    Sketcher.Constraint("DistanceY", 1, 2, 1, 1, Q("26 mm")),
    Sketcher.Constraint("DistanceX", -1, 1, 0, 2, Q("18.7 mm")),
    Sketcher.Constraint("DistanceY", -1, 1, 0, 2, Q("15.5 mm")),
])
pocket6 = body.newObject("PartDesign::Pocket", "Pocket005")
pocket6.Profile = sketch17
pocket6.Length = 1

# Sketch on YZ plane
sketch18 = body.newObject("Sketcher::SketchObject", "Sketch017")
sketch18.AttachmentSupport = (doc.getObject("YZ_Plane"), [""])
sketch18.MapMode = "FlatFace"
sketch18.AttachmentOffset = App.Placement(Vector(0, 0, 21.4), App.Rotation())
sketch18.addGeometry(Part.Circle(Vector(23.7, -2.955673, 0), Vector(0, 0, 1), 1.25), False)
sketch18.addConstraint([
    Sketcher.Constraint("Diameter", 0, Q("2.5 mm")),
    Sketcher.Constraint("DistanceX", -1, 1, 0, 3, Q("23.7 mm")),
    Sketcher.Constraint("DistanceY", 0, 3, -1, 1, Q("2.955673 mm")),
])
doc.recompute()
hole3 = body.newObject("PartDesign::Hole", "Hole002")
hole3.Profile = sketch18
hole3.ThreadType = "None"
hole3.Diameter = 2.5
hole3.DepthType = "Dimension"
hole3.Depth = 7.5
hole3.DrillPoint = "Angled"
hole3.DrillPointAngle = 118

doc.recompute()
